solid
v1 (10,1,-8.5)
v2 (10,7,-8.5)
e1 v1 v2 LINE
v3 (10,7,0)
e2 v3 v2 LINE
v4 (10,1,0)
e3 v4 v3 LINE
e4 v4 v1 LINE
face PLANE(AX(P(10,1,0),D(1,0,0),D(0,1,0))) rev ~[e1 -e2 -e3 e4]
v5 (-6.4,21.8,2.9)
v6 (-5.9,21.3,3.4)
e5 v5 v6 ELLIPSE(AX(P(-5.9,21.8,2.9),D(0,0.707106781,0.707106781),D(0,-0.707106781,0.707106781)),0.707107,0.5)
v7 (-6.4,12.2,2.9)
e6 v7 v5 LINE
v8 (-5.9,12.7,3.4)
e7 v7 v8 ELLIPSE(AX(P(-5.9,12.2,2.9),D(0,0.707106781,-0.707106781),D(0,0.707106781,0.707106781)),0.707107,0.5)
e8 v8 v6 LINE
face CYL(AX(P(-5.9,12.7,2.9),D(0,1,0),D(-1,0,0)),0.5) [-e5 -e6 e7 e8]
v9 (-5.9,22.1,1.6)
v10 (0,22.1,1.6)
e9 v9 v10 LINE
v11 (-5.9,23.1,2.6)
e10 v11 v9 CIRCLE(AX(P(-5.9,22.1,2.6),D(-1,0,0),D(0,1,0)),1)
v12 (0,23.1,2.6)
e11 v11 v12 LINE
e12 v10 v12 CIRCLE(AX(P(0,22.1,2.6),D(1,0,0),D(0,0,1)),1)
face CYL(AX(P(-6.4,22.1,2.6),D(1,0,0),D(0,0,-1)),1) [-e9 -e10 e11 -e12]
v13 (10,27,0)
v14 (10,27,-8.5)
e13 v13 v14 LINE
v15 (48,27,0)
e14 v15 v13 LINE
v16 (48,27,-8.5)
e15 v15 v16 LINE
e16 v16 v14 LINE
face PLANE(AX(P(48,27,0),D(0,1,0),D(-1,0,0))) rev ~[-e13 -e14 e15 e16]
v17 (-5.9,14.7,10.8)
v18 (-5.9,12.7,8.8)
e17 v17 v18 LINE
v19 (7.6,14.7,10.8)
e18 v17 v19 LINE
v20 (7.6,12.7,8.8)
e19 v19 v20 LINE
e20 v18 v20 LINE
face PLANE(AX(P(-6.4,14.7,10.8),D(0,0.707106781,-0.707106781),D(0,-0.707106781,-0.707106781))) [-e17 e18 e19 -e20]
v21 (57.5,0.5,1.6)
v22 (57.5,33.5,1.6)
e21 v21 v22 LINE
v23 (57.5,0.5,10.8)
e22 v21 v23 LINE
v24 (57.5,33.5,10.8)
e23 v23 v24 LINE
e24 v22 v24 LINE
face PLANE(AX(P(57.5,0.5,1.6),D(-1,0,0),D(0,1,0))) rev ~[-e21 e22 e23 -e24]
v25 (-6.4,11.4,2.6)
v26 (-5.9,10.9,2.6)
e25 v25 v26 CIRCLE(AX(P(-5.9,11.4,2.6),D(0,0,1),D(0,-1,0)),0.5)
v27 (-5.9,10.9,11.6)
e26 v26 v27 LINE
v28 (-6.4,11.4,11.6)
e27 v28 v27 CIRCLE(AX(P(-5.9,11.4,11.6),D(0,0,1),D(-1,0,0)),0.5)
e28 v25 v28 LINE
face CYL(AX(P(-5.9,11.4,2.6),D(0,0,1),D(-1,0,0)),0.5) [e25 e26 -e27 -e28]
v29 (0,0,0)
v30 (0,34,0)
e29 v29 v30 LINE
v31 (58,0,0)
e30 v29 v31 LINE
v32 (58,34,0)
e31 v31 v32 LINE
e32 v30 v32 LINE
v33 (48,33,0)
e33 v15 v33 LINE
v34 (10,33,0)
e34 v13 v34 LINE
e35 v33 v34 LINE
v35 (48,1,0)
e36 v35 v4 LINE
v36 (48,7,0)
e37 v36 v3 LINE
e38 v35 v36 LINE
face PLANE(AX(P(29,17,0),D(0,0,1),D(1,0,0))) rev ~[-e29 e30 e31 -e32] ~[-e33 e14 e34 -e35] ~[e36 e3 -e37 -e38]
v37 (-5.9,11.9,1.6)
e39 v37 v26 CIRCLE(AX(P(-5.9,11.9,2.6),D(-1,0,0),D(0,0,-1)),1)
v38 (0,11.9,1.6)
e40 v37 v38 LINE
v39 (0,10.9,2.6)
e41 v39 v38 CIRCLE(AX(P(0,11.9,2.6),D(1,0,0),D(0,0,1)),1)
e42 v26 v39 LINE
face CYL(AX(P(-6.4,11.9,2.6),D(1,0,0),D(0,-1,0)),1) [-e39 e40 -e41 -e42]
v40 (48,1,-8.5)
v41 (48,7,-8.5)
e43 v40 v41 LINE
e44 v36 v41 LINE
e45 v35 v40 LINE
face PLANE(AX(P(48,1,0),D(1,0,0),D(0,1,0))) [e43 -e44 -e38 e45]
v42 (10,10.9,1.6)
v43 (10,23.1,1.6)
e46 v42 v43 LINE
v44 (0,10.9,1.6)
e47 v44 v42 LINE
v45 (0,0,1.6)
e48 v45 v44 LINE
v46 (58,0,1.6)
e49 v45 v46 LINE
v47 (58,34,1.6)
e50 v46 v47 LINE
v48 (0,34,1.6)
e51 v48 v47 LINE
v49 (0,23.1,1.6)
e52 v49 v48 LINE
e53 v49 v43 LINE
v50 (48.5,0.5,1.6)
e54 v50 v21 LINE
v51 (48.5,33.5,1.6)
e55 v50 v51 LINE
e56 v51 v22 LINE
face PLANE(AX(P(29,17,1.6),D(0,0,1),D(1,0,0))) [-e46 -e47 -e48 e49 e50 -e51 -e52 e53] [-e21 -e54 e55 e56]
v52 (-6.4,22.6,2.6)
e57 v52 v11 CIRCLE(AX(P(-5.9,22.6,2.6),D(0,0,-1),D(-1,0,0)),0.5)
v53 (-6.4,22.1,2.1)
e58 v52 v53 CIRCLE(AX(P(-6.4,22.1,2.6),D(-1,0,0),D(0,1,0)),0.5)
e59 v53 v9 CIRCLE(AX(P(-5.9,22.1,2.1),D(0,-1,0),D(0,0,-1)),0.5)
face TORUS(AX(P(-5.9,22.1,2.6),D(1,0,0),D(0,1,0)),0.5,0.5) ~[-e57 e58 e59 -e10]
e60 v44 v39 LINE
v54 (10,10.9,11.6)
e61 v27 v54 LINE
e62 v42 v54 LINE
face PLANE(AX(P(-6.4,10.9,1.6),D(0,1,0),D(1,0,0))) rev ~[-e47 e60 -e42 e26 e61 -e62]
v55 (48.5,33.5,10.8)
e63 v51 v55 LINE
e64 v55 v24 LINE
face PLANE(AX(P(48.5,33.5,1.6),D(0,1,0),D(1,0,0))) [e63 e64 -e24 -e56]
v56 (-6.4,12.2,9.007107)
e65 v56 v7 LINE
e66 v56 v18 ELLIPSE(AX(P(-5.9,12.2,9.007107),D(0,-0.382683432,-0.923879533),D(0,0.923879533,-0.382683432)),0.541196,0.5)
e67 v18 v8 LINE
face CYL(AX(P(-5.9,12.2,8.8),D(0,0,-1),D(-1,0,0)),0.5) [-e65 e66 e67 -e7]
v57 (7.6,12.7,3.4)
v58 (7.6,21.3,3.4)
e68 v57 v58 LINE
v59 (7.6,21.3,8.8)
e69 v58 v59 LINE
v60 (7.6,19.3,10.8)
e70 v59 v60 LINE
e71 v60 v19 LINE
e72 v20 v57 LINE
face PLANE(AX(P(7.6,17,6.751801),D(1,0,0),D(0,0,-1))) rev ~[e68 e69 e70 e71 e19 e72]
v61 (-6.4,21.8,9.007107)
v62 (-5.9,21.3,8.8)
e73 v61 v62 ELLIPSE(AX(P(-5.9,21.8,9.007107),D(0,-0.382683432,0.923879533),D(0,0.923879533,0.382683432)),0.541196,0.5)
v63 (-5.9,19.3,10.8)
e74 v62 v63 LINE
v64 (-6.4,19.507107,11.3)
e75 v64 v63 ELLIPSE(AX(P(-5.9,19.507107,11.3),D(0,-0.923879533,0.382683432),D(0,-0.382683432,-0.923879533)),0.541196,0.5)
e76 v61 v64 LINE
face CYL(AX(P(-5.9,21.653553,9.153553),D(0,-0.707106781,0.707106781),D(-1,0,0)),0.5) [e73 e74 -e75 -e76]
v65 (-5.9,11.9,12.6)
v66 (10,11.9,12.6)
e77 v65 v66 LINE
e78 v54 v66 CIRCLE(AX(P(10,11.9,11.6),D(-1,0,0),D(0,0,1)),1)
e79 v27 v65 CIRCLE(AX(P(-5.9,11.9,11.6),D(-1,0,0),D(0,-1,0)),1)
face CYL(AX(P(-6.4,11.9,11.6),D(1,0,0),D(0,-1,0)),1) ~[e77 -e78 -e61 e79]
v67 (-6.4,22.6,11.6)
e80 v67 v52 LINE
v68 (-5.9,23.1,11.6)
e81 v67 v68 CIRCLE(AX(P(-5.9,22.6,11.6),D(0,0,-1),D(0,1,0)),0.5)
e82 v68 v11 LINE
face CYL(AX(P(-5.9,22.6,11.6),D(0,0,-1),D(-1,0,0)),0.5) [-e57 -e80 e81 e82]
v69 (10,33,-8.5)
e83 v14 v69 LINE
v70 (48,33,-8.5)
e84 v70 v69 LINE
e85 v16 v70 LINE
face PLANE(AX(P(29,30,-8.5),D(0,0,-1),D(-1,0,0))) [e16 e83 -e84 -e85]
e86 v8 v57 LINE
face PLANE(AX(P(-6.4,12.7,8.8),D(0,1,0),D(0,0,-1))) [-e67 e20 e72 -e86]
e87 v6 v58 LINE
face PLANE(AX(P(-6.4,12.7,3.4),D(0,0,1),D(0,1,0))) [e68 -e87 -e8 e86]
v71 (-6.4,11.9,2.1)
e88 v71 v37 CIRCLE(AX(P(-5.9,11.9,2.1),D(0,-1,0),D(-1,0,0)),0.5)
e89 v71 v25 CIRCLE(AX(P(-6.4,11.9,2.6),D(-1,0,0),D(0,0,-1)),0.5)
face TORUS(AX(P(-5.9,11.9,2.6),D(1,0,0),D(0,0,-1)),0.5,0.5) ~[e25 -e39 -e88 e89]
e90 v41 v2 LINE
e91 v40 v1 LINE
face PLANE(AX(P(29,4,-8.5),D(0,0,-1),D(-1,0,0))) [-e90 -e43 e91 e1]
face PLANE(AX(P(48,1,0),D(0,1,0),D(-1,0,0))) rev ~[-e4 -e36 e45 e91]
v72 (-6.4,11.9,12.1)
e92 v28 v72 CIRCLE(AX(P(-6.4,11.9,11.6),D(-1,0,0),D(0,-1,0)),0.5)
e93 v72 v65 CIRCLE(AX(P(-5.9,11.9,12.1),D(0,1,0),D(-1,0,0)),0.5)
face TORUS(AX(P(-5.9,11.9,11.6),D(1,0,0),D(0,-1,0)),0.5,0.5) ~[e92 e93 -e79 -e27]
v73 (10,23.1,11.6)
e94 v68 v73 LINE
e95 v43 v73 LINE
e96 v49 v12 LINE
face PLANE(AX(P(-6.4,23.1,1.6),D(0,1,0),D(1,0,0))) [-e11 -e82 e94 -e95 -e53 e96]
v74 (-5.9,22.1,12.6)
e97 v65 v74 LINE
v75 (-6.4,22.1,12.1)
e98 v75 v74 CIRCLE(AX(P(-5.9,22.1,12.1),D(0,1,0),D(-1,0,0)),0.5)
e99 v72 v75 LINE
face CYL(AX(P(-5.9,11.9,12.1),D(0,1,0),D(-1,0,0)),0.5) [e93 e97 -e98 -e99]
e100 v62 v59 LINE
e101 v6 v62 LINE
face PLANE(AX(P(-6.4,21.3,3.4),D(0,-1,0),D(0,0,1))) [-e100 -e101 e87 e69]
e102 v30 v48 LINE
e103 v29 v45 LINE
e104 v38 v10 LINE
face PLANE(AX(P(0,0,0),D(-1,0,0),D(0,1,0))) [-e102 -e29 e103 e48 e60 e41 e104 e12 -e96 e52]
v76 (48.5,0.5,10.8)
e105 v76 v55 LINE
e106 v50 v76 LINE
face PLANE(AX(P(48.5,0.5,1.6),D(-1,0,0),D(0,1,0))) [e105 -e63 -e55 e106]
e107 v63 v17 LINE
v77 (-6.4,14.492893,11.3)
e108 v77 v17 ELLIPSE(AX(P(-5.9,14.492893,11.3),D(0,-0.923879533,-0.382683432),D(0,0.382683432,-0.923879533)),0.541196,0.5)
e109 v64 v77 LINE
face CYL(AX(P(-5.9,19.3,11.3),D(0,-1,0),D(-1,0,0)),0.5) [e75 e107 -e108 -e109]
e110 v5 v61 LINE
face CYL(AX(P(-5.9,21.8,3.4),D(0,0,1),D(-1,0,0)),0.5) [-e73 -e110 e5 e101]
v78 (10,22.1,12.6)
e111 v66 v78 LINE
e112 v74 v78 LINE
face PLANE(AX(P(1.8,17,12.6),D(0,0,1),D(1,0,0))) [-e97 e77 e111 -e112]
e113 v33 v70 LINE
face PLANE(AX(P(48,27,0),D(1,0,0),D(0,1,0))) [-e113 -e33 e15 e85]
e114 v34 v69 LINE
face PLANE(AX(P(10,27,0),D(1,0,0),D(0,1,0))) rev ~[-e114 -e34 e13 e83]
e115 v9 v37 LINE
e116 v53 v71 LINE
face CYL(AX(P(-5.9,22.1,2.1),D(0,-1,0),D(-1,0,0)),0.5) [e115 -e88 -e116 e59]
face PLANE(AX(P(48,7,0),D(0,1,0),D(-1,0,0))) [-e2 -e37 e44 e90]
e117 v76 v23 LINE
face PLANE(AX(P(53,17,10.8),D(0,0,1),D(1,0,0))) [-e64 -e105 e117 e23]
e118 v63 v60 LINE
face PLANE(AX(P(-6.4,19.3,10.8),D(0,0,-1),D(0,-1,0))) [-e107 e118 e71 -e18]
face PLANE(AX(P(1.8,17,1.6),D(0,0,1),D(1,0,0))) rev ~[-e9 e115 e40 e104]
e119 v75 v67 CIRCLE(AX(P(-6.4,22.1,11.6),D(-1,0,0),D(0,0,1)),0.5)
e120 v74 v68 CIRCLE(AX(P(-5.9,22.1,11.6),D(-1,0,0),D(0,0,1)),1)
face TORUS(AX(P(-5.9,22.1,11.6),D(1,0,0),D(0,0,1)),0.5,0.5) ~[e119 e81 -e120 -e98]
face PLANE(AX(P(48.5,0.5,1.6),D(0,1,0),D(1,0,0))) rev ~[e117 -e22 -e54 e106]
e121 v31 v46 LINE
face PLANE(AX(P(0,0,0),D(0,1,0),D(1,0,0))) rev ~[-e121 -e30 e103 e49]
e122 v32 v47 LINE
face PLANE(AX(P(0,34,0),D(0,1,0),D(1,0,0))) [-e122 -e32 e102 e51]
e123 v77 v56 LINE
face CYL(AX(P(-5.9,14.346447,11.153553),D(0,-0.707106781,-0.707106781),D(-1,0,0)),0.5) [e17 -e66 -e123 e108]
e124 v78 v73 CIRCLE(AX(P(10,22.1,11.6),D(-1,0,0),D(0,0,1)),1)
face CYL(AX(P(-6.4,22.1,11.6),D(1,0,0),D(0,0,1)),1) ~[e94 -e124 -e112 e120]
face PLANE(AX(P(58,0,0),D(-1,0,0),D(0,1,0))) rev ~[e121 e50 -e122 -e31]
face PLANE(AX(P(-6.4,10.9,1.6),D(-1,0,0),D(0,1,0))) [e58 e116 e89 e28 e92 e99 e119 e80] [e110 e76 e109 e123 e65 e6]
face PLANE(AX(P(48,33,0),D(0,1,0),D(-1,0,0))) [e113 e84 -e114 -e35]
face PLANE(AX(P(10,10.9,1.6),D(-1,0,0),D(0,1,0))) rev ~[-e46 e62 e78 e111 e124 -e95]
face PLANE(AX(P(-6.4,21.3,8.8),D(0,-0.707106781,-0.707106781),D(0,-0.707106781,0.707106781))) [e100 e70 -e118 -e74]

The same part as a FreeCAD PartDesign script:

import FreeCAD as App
import Part
import Sketcher
from FreeCAD import Vector
Q = App.Units.Quantity


def edges_at(feature, points):
    """Names of the edges that pass closest to the given points."""
    edges = feature.Shape.Edges
    near = lambda p: min(range(len(edges)), key=lambda i: edges[i].distToShape(Part.Vertex(*p))[0])
    return sorted({f"Edge{near(p) + 1}" for p in points})

doc = App.newDocument("Part")
params = doc.addObject("Spreadsheet::Sheet", "Params")
for row, (alias, value) in enumerate([
    ("sketch1_width", "58 mm"),
    ("sketch1_height", "34 mm"),
    ("pad1_length", "1.6 mm"),
    ("sketch2_width", "38 mm"),
    ("sketch2_height", "6 mm"),
    ("pad2_length", "8.5 mm"),
    ("sketch3_width", "9 mm"),
    ("sketch3_height", "33 mm"),
    ("pad3_length", "9.2 mm"),
    ("sketch4_width", "16.4 mm"),
    ("sketch4_height", "12.2 mm"),
    ("pad4_length", "11 mm"),
    ("sketch5_width", "8.6 mm"),
    ("sketch5_width2", "4.6 mm"),
    ("sketch5_height", "5.4 mm"),
    ("pocket1_length", "14 mm"),
    ("fillet_radius", "1 mm"),
    ("fillet2_radius", "0.5 mm"),
], start=1):
    params.set(f"A{row}", alias)
    params.set(f"B{row}", "=" + value)
    params.setAlias(f"B{row}", alias)

body = doc.addObject("PartDesign::Body", "Body")

# Sketch on XY plane
sketch1 = body.newObject("Sketcher::SketchObject", "Sketch")
sketch1.AttachmentSupport = (doc.getObject("XY_Plane"), [""])
sketch1.MapMode = "FlatFace"
sketch1.addGeometry([
    Part.LineSegment(Vector(0, 34, 0), Vector(0, 0, 0)),
    Part.LineSegment(Vector(0, 0, 0), Vector(58, 0, 0)),
    Part.LineSegment(Vector(58, 0, 0), Vector(58, 34, 0)),
    Part.LineSegment(Vector(58, 34, 0), Vector(0, 34, 0)),
], False)
sketch1.addConstraint([
    Sketcher.Constraint("Coincident", 0, 2, 1, 1),
    Sketcher.Constraint("Coincident", 1, 2, 2, 1),
    Sketcher.Constraint("Coincident", 2, 2, 3, 1),
    Sketcher.Constraint("Coincident", 3, 2, 0, 1),
    Sketcher.Constraint("Vertical", 0),
    Sketcher.Constraint("Horizontal", 1),
    Sketcher.Constraint("Vertical", 2),
    Sketcher.Constraint("Horizontal", 3),
    Sketcher.Constraint("Coincident", 0, 2, -1, 1),
    Sketcher.Constraint("DistanceX", 1, 1, 1, 2, Q("58 mm")),
    Sketcher.Constraint("DistanceY", 0, 2, 0, 1, Q("34 mm")),
])
sketch1.setExpression("Constraints[9]", "Params.sketch1_width")
sketch1.setExpression("Constraints[10]", "Params.sketch1_height")
pad1 = body.newObject("PartDesign::Pad", "Pad")
pad1.Profile = sketch1
pad1.setExpression("Length", "Params.pad1_length")

# Sketch on XY plane
sketch2 = body.newObject("Sketcher::SketchObject", "Sketch001")
sketch2.AttachmentSupport = (doc.getObject("XY_Plane"), [""])
sketch2.MapMode = "FlatFace"
sketch2.addGeometry([
    Part.LineSegment(Vector(48, 33, 0), Vector(48, 27, 0)),  # 0
    Part.LineSegment(Vector(48, 27, 0), Vector(10, 27, 0)),  # 1
    Part.LineSegment(Vector(10, 27, 0), Vector(10, 33, 0)),  # 2
    Part.LineSegment(Vector(10, 33, 0), Vector(48, 33, 0)),  # 3
    Part.LineSegment(Vector(48, 7, 0), Vector(48, 1, 0)),  # 4
    Part.LineSegment(Vector(48, 1, 0), Vector(10, 1, 0)),  # 5
    Part.LineSegment(Vector(10, 1, 0), Vector(10, 7, 0)),  # 6
    Part.LineSegment(Vector(10, 7, 0), Vector(48, 7, 0)),  # 7
], False)
sketch2.addConstraint([
    Sketcher.Constraint("Coincident", 0, 2, 1, 1),
    Sketcher.Constraint("Coincident", 1, 2, 2, 1),
    Sketcher.Constraint("Coincident", 2, 2, 3, 1),
    Sketcher.Constraint("Coincident", 3, 2, 0, 1),
    Sketcher.Constraint("Coincident", 4, 2, 5, 1),
    Sketcher.Constraint("Coincident", 5, 2, 6, 1),
    Sketcher.Constraint("Coincident", 6, 2, 7, 1),
    Sketcher.Constraint("Coincident", 7, 2, 4, 1),
    Sketcher.Constraint("Vertical", 0),
    Sketcher.Constraint("Horizontal", 1),
    Sketcher.Constraint("Vertical", 2),
    Sketcher.Constraint("Horizontal", 3),
    Sketcher.Constraint("Vertical", 4),
    Sketcher.Constraint("Horizontal", 5),
    Sketcher.Constraint("Vertical", 6),
    Sketcher.Constraint("Horizontal", 7),
    Sketcher.Constraint("Vertical", 3, 2, 4, 2),
    Sketcher.Constraint("Vertical", 2, 2, 5, 2),
    Sketcher.Constraint("Equal", 2, 4),
    Sketcher.Constraint("DistanceX", 1, 2, 1, 1, Q("38 mm")),
    Sketcher.Constraint("DistanceY", 0, 2, 0, 1, Q("6 mm")),
    Sketcher.Constraint("DistanceX", -1, 1, 0, 2, Q("48 mm")),
    Sketcher.Constraint("DistanceY", -1, 1, 0, 2, Q("27 mm")),
    Sketcher.Constraint("DistanceY", -1, 1, 4, 2, Q("1 mm")),
])
sketch2.setExpression("Constraints[19]", "Params.sketch2_width")
sketch2.setExpression("Constraints[20]", "Params.sketch2_height")
pad2 = body.newObject("PartDesign::Pad", "Pad001")
pad2.Profile = sketch2
pad2.setExpression("Length", "Params.pad2_length")
pad2.Reversed = True

# Sketch on XY plane
sketch3 = body.newObject("Sketcher::SketchObject", "Sketch002")
sketch3.AttachmentSupport = (doc.getObject("XY_Plane"), [""])
sketch3.MapMode = "FlatFace"
sketch3.AttachmentOffset = App.Placement(Vector(0, 0, 1.6), App.Rotation())
sketch3.addGeometry([
    Part.LineSegment(Vector(48, 34, 0), Vector(48, 0, 0)),
    Part.LineSegment(Vector(48, 0, 0), Vector(58, 0, 0)),
    Part.LineSegment(Vector(58, 0, 0), Vector(58, 34, 0)),
    Part.LineSegment(Vector(58, 34, 0), Vector(48, 34, 0)),
], False)
sketch3.addConstraint([
    Sketcher.Constraint("Coincident", 0, 2, 1, 1),
    Sketcher.Constraint("Coincident", 1, 2, 2, 1),
    Sketcher.Constraint("Coincident", 2, 2, 3, 1),
    Sketcher.Constraint("Coincident", 3, 2, 0, 1),
    Sketcher.Constraint("Vertical", 0),
    Sketcher.Constraint("Horizontal", 1),
    Sketcher.Constraint("Vertical", 2),
    Sketcher.Constraint("Horizontal", 3),
    Sketcher.Constraint("DistanceX", 1, 1, 1, 2, Q("9 mm")),
    Sketcher.Constraint("DistanceY", 0, 2, 0, 1, Q("33 mm")),
    Sketcher.Constraint("DistanceX", -1, 1, 0, 2, Q("48.5 mm")),
    Sketcher.Constraint("DistanceY", -1, 1, 0, 2, Q("0.5 mm")),
])
sketch3.setExpression("Constraints[8]", "Params.sketch3_width")
sketch3.setExpression("Constraints[9]", "Params.sketch3_height")
pad3 = body.newObject("PartDesign::Pad", "Pad002")
pad3.Profile = sketch3
pad3.setExpression("Length", "Params.pad3_length")

# Sketch on XY plane
sketch4 = body.newObject("Sketcher::SketchObject", "Sketch003")
sketch4.AttachmentSupport = (doc.getObject("XY_Plane"), [""])
sketch4.MapMode = "FlatFace"
sketch4.AttachmentOffset = App.Placement(Vector(0, 0, 1.6), App.Rotation())
sketch4.addGeometry([
    Part.LineSegment(Vector(-6, 23, 0), Vector(-6, 11, 0)),
    Part.LineSegment(Vector(-6, 11, 0), Vector(10, 11, 0)),
    Part.LineSegment(Vector(10, 11, 0), Vector(10, 23, 0)),
    Part.LineSegment(Vector(10, 23, 0), Vector(-6, 23, 0)),
], False)
sketch4.addConstraint([
    Sketcher.Constraint("Coincident", 0, 2, 1, 1),
    Sketcher.Constraint("Coincident", 1, 2, 2, 1),
    Sketcher.Constraint("Coincident", 2, 2, 3, 1),
    Sketcher.Constraint("Coincident", 3, 2, 0, 1),
    Sketcher.Constraint("Vertical", 0),
    Sketcher.Constraint("Horizontal", 1),
    Sketcher.Constraint("Vertical", 2),
    Sketcher.Constraint("Horizontal", 3),
    Sketcher.Constraint("DistanceX", 1, 1, 1, 2, Q("16.4 mm")),
    Sketcher.Constraint("DistanceY", 0, 2, 0, 1, Q("12.2 mm")),
    Sketcher.Constraint("DistanceX", -1, 1, 1, 2, Q("10 mm")),
    Sketcher.Constraint("DistanceY", -1, 1, 0, 2, Q("10.9 mm")),
])
sketch4.setExpression("Constraints[8]", "Params.sketch4_width")
sketch4.setExpression("Constraints[9]", "Params.sketch4_height")
pad4 = body.newObject("PartDesign::Pad", "Pad003")
pad4.Profile = sketch4
pad4.setExpression("Length", "Params.pad4_length")

# Sketch on YZ plane
sketch5 = body.newObject("Sketcher::SketchObject", "Sketch004")
sketch5.AttachmentSupport = (doc.getObject("YZ_Plane"), [""])
sketch5.MapMode = "FlatFace"
sketch5.AttachmentOffset = App.Placement(Vector(0, 0, -6.4), App.Rotation())
sketch5.addGeometry([
    Part.LineSegment(Vector(19.3, 10.8, 0), Vector(21.3, 8.8, 0)),  # 0
    Part.LineSegment(Vector(21.3, 8.8, 0), Vector(21.3, 3.4, 0)),  # 1
    Part.LineSegment(Vector(21.3, 3.4, 0), Vector(12.7, 3.4, 0)),  # 2
    Part.LineSegment(Vector(12.7, 3.4, 0), Vector(12.7, 8.8, 0)),  # 3
    Part.LineSegment(Vector(12.7, 8.8, 0), Vector(14.7, 10.8, 0)),  # 4
    Part.LineSegment(Vector(14.7, 10.8, 0), Vector(19.3, 10.8, 0)),  # 5
], False)
sketch5.addConstraint([
    Sketcher.Constraint("Coincident", 0, 2, 1, 1),
    Sketcher.Constraint("Coincident", 1, 2, 2, 1),
    Sketcher.Constraint("Coincident", 2, 2, 3, 1),
    Sketcher.Constraint("Coincident", 3, 2, 4, 1),
    Sketcher.Constraint("Coincident", 4, 2, 5, 1),
    Sketcher.Constraint("Coincident", 5, 2, 0, 1),
    Sketcher.Constraint("Vertical", 1),
    Sketcher.Constraint("Horizontal", 2),
    Sketcher.Constraint("Vertical", 3),
    Sketcher.Constraint("Horizontal", 5),
    Sketcher.Constraint("Perpendicular", 0, 4),
    Sketcher.Constraint("Horizontal", 0, 2, 3, 2),
    Sketcher.Constraint("Equal", 0, 4),
    Sketcher.Constraint("DistanceX", 2, 2, 2, 1, Q("8.6 mm")),
    Sketcher.Constraint("DistanceX", 5, 1, 5, 2, Q("4.6 mm")),
    Sketcher.Constraint("DistanceY", 1, 2, 1, 1, Q("5.4 mm")),
    Sketcher.Constraint("DistanceX", -1, 1, 0, 2, Q("21.3 mm")),
    Sketcher.Constraint("DistanceY", -1, 1, 0, 2, Q("8.8 mm")),
])
sketch5.setExpression("Constraints[13]", "Params.sketch5_width")
sketch5.setExpression("Constraints[14]", "Params.sketch5_width2")
sketch5.setExpression("Constraints[15]", "Params.sketch5_height")
pocket1 = body.newObject("PartDesign::Pocket", "Pocket")
pocket1.Profile = sketch5
pocket1.setExpression("Length", "Params.pocket1_length")
pocket1.Reversed = True
doc.recompute()

fillet = body.newObject("PartDesign::Fillet", "Fillet")
fillet.Base = (pocket1, edges_at(pocket1, [
    (-3.2, 23.1, 1.6),
    (-3.2, 10.9, 1.6),
    (1.8, 23.1, 12.6),
    (1.8, 10.9, 12.6),
]))
fillet.setExpression("Radius", "Params.fillet_radius")
doc.recompute()

fillet2 = body.newObject("PartDesign::Fillet", "Fillet001")
fillet2.Base = (fillet, edges_at(fillet, [
    (-6.4, 21.3, 6.1),
    (-6.4, 17, 3.4),
    (-6.4, 12.7, 6.1),
    (-6.4, 13.7, 9.8),
    (-6.4, 17, 10.8),
    (-6.4, 20.3, 9.8),
    (-6.4, 17, 12.6),
    (-6.4, 10.9, 7.1),
    (-6.4, 17, 1.6),
    (-6.4, 23.1, 7.1),
    (-6.4, 22.807, 12.307),
    (-6.4, 22.807, 1.893),
    (-6.4, 11.193, 1.893),
    (-6.4, 11.193, 12.307),
]))
fillet2.setExpression("Radius", "Params.fillet2_radius")

doc.recompute()
